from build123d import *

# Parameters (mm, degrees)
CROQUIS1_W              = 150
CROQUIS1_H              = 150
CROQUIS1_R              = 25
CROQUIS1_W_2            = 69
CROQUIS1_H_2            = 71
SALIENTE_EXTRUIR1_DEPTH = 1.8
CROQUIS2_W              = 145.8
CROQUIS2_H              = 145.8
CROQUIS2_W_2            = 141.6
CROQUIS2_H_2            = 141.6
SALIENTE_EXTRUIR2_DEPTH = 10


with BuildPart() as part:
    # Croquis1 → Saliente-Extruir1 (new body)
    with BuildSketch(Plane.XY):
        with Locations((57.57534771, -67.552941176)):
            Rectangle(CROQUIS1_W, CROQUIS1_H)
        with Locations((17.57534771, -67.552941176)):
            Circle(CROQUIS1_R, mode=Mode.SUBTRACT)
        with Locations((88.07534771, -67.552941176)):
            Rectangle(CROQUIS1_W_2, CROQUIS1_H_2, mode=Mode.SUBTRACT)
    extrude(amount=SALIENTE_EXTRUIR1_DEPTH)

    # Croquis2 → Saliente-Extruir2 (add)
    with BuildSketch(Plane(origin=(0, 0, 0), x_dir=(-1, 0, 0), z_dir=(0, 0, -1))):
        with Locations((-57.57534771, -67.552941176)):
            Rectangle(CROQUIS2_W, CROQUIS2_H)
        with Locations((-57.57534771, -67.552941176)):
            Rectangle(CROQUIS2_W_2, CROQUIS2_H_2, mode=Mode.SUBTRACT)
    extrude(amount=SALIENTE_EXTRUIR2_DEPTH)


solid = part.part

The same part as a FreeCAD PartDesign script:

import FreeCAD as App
import Part
import Sketcher

doc = App.newDocument("Part")
params = doc.addObject("Spreadsheet::Sheet", "Params")
for row, (alias, value) in enumerate([
    ("sketch1_diameter", "50 mm"),
    ("sketch1_width", "150 mm"),
    ("sketch1_width2", "69 mm"),
    ("sketch1_height", "71 mm"),
    ("pad1_length", "1.8 mm"),
    ("sketch2_width", "145.8 mm"),
    ("sketch2_width2", "141.6 mm"),
    ("pad2_length", "10 mm"),
], start=1):
    params.set(f"A{row}", alias)
    params.set(f"B{row}", "=" + value)
    params.setAlias(f"B{row}", alias)

body = doc.addObject("PartDesign::Body", "Body")

# Sketch on XY plane
sketch1 = body.newObject("Sketcher::SketchObject", "Sketch")
sketch1.AttachmentSupport = (doc.getObject("XY_Plane"), [""])
sketch1.MapMode = "FlatFace"
sketch1.addGeometry(Part.LineSegment(App.Vector(-17, 7, 0), App.Vector(-17, -143, 0)), False)
sketch1.addGeometry(Part.LineSegment(App.Vector(-17, -143, 0), App.Vector(133, -143, 0)), False)
sketch1.addGeometry(Part.LineSegment(App.Vector(133, -143, 0), App.Vector(133, 7, 0)), False)
sketch1.addGeometry(Part.LineSegment(App.Vector(133, 7, 0), App.Vector(-17, 7, 0)), False)
sketch1.addGeometry(Part.Circle(App.Vector(18, -68, 0), App.Vector(0, 0, 1), 25), False)
sketch1.addGeometry(Part.LineSegment(App.Vector(123, -103, 0), App.Vector(54, -103, 0)), False)
sketch1.addGeometry(Part.LineSegment(App.Vector(54, -103, 0), App.Vector(54, -32, 0)), False)
sketch1.addGeometry(Part.LineSegment(App.Vector(54, -32, 0), App.Vector(123, -32, 0)), False)
sketch1.addGeometry(Part.LineSegment(App.Vector(123, -32, 0), App.Vector(123, -103, 0)), False)
sketch1.addConstraint(Sketcher.Constraint("Coincident", 0, 2, 1, 1))
sketch1.addConstraint(Sketcher.Constraint("Coincident", 1, 2, 2, 1))
sketch1.addConstraint(Sketcher.Constraint("Coincident", 2, 2, 3, 1))
sketch1.addConstraint(Sketcher.Constraint("Coincident", 3, 2, 0, 1))
sketch1.addConstraint(Sketcher.Constraint("Coincident", 5, 2, 6, 1))
sketch1.addConstraint(Sketcher.Constraint("Coincident", 6, 2, 7, 1))
sketch1.addConstraint(Sketcher.Constraint("Coincident", 7, 2, 8, 1))
sketch1.addConstraint(Sketcher.Constraint("Coincident", 8, 2, 5, 1))
sketch1.addConstraint(Sketcher.Constraint("Vertical", 0))
sketch1.addConstraint(Sketcher.Constraint("Horizontal", 1))
sketch1.addConstraint(Sketcher.Constraint("Vertical", 2))
sketch1.addConstraint(Sketcher.Constraint("Horizontal", 3))
sketch1.addConstraint(Sketcher.Constraint("Horizontal", 5))
sketch1.addConstraint(Sketcher.Constraint("Vertical", 6))
sketch1.addConstraint(Sketcher.Constraint("Horizontal", 7))
sketch1.addConstraint(Sketcher.Constraint("Vertical", 8))
sketch1.addConstraint(Sketcher.Constraint("Equal", 3, 0))
sketch1.addConstraint(Sketcher.Constraint("Diameter", 4, 50.0))
sketch1.addConstraint(Sketcher.Constraint("DistanceX", 1, 1, 1, 2, 150.0))
sketch1.addConstraint(Sketcher.Constraint("DistanceX", 5, 2, 5, 1, 69.0))
sketch1.addConstraint(Sketcher.Constraint("DistanceY", 6, 1, 6, 2, 71.0))
sketch1.addConstraint(Sketcher.Constraint("DistanceX", 0, 2, 4, 3, 35.0))
sketch1.addConstraint(Sketcher.Constraint("DistanceY", 0, 2, 4, 3, 75.0))
sketch1.addConstraint(Sketcher.Constraint("DistanceX", 4, 3, 5, 2, 36.0))
sketch1.addConstraint(Sketcher.Constraint("DistanceY", 5, 2, 4, 3, 35.5))
sketch1.addConstraint(Sketcher.Constraint("DistanceY", 4, 3, -1, 1, 67.552941))
sketch1.addConstraint(Sketcher.Constraint("DistanceX", -1, 1, 4, 3, 17.575348))
sketch1.setExpression("Constraints[17]", "Params.sketch1_diameter")
sketch1.setExpression("Constraints[18]", "Params.sketch1_width")
sketch1.setExpression("Constraints[19]", "Params.sketch1_width2")
sketch1.setExpression("Constraints[20]", "Params.sketch1_height")
pad1 = body.newObject("PartDesign::Pad", "Pad")
pad1.Profile = sketch1
pad1.setExpression("Length", "Params.pad1_length")

# Sketch on XY plane
sketch2 = body.newObject("Sketcher::SketchObject", "Sketch001")
sketch2.AttachmentSupport = (doc.getObject("XY_Plane"), [""])
sketch2.MapMode = "FlatFace"
sketch2.addGeometry(Part.LineSegment(App.Vector(130, 5, 0), App.Vector(130, -140, 0)), False)
sketch2.addGeometry(Part.LineSegment(App.Vector(130, -140, 0), App.Vector(-15, -140, 0)), False)
sketch2.addGeometry(Part.LineSegment(App.Vector(-15, -140, 0), App.Vector(-15, 5, 0)), False)
sketch2.addGeometry(Part.LineSegment(App.Vector(-15, 5, 0), App.Vector(130, 5, 0)), False)
sketch2.addGeometry(Part.LineSegment(App.Vector(-13, -138, 0), App.Vector(128, -138, 0)), False)
sketch2.addGeometry(Part.LineSegment(App.Vector(128, -138, 0), App.Vector(128, 3, 0)), False)
sketch2.addGeometry(Part.LineSegment(App.Vector(128, 3, 0), App.Vector(-13, 3, 0)), False)
sketch2.addGeometry(Part.LineSegment(App.Vector(-13, 3, 0), App.Vector(-13, -138, 0)), False)
sketch2.addConstraint(Sketcher.Constraint("Coincident", 0, 2, 1, 1))
sketch2.addConstraint(Sketcher.Constraint("Coincident", 1, 2, 2, 1))
sketch2.addConstraint(Sketcher.Constraint("Coincident", 2, 2, 3, 1))
sketch2.addConstraint(Sketcher.Constraint("Coincident", 3, 2, 0, 1))
sketch2.addConstraint(Sketcher.Constraint("Coincident", 4, 2, 5, 1))
sketch2.addConstraint(Sketcher.Constraint("Coincident", 5, 2, 6, 1))
sketch2.addConstraint(Sketcher.Constraint("Coincident", 6, 2, 7, 1))
sketch2.addConstraint(Sketcher.Constraint("Coincident", 7, 2, 4, 1))
sketch2.addConstraint(Sketcher.Constraint("Vertical", 0))
sketch2.addConstraint(Sketcher.Constraint("Horizontal", 1))
sketch2.addConstraint(Sketcher.Constraint("Vertical", 2))
sketch2.addConstraint(Sketcher.Constraint("Horizontal", 3))
sketch2.addConstraint(Sketcher.Constraint("Horizontal", 4))
sketch2.addConstraint(Sketcher.Constraint("Vertical", 5))
sketch2.addConstraint(Sketcher.Constraint("Horizontal", 6))
sketch2.addConstraint(Sketcher.Constraint("Vertical", 7))
sketch2.addConstraint(Sketcher.Constraint("Equal", 3, 0))
sketch2.addConstraint(Sketcher.Constraint("Equal", 6, 5))
sketch2.addConstraint(Sketcher.Constraint("DistanceX", 1, 2, 1, 1, 145.8))
sketch2.addConstraint(Sketcher.Constraint("DistanceX", 4, 1, 4, 2, 141.6))
sketch2.addConstraint(Sketcher.Constraint("DistanceX", 4, 2, 0, 2, 2.1))
sketch2.addConstraint(Sketcher.Constraint("DistanceY", 0, 2, 4, 2, 2.1))
sketch2.addConstraint(Sketcher.Constraint("DistanceY", 0, 2, -1, 1, 140.452941))
sketch2.addConstraint(Sketcher.Constraint("DistanceX", -1, 1, 0, 2, 130.475348))
sketch2.setExpression("Constraints[18]", "Params.sketch2_width")
sketch2.setExpression("Constraints[19]", "Params.sketch2_width2")
pad2 = body.newObject("PartDesign::Pad", "Pad001")
pad2.Profile = sketch2
pad2.setExpression("Length", "Params.pad2_length")
pad2.Reversed = True

doc.recompute()
